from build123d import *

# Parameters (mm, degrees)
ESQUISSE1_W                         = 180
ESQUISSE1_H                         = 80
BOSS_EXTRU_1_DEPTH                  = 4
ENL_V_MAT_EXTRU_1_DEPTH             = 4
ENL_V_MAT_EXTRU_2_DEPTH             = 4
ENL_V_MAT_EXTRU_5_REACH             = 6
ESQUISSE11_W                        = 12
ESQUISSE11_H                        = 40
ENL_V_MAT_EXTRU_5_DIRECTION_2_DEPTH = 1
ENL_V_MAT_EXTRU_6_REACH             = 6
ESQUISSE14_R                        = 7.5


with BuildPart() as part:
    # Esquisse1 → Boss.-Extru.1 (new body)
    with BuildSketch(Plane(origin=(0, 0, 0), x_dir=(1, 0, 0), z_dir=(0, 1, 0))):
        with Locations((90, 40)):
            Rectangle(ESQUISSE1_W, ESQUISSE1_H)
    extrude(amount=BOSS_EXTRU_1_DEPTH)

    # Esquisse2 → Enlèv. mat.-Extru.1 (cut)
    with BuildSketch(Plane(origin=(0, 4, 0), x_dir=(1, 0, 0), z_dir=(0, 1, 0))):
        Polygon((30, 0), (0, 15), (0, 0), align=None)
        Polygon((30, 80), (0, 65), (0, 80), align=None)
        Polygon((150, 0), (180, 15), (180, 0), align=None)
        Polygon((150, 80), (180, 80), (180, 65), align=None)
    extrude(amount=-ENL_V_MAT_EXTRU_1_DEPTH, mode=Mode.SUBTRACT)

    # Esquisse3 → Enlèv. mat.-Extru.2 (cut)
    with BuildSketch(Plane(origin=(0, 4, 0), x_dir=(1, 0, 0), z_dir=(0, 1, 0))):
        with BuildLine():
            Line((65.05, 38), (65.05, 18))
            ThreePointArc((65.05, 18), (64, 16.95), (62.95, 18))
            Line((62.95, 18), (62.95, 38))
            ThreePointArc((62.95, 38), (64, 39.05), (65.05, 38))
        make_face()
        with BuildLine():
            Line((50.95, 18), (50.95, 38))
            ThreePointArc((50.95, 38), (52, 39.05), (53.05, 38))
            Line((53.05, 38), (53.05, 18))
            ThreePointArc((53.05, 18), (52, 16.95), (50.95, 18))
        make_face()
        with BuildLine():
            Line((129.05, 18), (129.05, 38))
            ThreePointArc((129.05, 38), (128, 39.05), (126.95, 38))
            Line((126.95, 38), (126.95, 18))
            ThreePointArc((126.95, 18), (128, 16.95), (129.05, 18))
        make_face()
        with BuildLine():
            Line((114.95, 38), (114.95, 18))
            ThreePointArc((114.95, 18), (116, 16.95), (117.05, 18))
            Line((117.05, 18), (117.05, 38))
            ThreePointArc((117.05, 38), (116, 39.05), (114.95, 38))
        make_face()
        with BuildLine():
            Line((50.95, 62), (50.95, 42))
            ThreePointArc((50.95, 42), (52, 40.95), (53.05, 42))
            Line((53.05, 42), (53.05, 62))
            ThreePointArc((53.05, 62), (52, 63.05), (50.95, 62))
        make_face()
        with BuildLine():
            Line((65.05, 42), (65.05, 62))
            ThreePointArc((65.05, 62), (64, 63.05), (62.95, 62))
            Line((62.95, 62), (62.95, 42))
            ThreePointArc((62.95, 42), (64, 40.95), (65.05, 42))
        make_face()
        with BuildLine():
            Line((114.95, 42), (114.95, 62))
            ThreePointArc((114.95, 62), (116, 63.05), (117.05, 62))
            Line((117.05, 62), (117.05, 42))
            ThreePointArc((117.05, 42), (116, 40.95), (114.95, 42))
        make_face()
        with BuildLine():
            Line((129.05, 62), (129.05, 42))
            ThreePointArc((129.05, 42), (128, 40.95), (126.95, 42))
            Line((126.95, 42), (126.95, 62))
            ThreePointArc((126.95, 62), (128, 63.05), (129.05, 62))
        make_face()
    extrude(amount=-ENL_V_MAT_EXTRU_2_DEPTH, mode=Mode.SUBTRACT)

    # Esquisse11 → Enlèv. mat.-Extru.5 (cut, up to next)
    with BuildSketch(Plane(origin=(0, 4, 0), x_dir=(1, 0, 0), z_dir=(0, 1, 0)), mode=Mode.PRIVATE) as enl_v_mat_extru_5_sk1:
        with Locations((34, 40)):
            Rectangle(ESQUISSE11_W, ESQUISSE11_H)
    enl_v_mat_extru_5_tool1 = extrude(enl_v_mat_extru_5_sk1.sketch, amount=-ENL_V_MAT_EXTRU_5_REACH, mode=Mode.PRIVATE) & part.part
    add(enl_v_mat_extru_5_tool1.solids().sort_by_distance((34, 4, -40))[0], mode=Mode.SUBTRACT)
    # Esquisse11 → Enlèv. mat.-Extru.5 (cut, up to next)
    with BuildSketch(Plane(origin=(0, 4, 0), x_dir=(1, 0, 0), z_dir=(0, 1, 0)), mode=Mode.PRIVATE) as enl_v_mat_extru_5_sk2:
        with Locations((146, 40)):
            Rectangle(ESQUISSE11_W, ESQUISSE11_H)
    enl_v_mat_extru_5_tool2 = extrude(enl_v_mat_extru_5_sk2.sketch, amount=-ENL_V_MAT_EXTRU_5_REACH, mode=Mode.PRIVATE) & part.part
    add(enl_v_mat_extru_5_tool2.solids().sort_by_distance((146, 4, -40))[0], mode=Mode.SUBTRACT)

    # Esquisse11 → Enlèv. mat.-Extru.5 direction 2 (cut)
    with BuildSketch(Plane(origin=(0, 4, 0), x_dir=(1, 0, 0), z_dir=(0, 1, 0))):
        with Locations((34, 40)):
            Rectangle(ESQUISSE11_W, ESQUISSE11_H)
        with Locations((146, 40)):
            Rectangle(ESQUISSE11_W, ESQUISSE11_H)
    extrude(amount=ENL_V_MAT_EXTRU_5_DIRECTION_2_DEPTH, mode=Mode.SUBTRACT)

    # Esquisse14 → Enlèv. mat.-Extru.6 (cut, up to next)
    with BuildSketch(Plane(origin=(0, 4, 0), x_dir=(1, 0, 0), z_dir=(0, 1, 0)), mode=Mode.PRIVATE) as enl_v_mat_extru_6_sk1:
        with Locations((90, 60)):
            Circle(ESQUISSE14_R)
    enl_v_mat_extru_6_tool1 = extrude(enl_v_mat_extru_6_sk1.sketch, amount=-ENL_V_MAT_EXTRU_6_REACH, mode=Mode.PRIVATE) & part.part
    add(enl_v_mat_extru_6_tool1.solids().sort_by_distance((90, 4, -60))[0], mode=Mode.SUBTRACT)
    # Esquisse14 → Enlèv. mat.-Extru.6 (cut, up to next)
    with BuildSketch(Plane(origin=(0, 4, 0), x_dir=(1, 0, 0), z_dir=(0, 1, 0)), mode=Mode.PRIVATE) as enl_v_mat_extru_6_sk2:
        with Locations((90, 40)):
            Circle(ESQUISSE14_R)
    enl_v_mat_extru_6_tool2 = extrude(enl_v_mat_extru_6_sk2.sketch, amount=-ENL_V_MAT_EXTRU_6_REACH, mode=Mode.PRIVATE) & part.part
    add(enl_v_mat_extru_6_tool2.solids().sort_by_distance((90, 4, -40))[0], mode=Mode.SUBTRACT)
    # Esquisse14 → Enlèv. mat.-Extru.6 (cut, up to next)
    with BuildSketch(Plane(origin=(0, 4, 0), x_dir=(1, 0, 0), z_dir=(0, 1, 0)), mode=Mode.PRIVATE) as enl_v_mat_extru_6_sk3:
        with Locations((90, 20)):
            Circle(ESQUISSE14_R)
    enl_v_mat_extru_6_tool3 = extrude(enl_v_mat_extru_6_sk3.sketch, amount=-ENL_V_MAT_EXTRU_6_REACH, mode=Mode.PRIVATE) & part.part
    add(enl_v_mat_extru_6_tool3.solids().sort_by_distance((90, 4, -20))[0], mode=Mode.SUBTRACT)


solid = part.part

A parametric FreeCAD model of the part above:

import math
import FreeCAD as App
import Part
import Sketcher
from FreeCAD import Vector
Q = App.Units.Quantity


def add_polygon(sketch, points):
    """Adds a closed chain of lines whose ends are joined by coincident constraints."""
    first, n = sketch.GeometryCount, len(points)
    for a, b in zip(points, points[1:] + points[:1]):
        sketch.addGeometry(Part.LineSegment(App.Vector(*a, 0), App.Vector(*b, 0)), False)
    for i in range(n):
        sketch.addConstraint(Sketcher.Constraint("Coincident", first + i, 2, first + (i + 1) % n, 1))

doc = App.newDocument("Part")
body = doc.addObject("PartDesign::Body", "Body")

# Sketch on XZ plane
sketch1 = doc.addObject("Sketcher::SketchObject", "Sketch")
body.addObject(sketch1)
sketch1.AttachmentSupport = (doc.XZ_Plane, [""])
sketch1.MapMode = "FlatFace"
add_polygon(sketch1, [(0, -80), (0, 0), (180, 0), (180, -80)])  # lines 0-3
sketch1.addConstraint(Sketcher.Constraint("Vertical", 0))
sketch1.addConstraint(Sketcher.Constraint("Horizontal", 1))
sketch1.addConstraint(Sketcher.Constraint("Vertical", 2))
sketch1.addConstraint(Sketcher.Constraint("Horizontal", 3))
sketch1.addConstraint(Sketcher.Constraint("Coincident", 0, 2, -1, 1))
sketch1.addConstraint(Sketcher.Constraint("DistanceX", 1, 1, 1, 2, Q("180 mm")))
sketch1.addConstraint(Sketcher.Constraint("DistanceY", 0, 1, 0, 2, Q("80 mm")))
pad1 = doc.addObject("PartDesign::Pad", "Pad")
body.addObject(pad1)
pad1.Profile = sketch1
pad1.Length = 4
pad1.Reversed = True

# Sketch on XZ plane
sketch2 = doc.addObject("Sketcher::SketchObject", "Sketch001")
body.addObject(sketch2)
sketch2.AttachmentSupport = (doc.XZ_Plane, [""])
sketch2.MapMode = "FlatFace"
sketch2.AttachmentOffset = App.Placement(Vector(0, 0, -4), App.Rotation())
add_polygon(sketch2, [(30, 0), (0, -15), (0, 0)])  # lines 0-2
add_polygon(sketch2, [(0, -65), (30, -80), (0, -80)])  # lines 3-5
add_polygon(sketch2, [(180, -15), (150, 0), (180, 0)])  # lines 6-8
add_polygon(sketch2, [(180, -80), (150, -80), (180, -65)])  # lines 9-11
sketch2.addConstraint(Sketcher.Constraint("Vertical", 1))
sketch2.addConstraint(Sketcher.Constraint("Horizontal", 2))
sketch2.addConstraint(Sketcher.Constraint("Horizontal", 4))
sketch2.addConstraint(Sketcher.Constraint("Vertical", 5))
sketch2.addConstraint(Sketcher.Constraint("Horizontal", 7))
sketch2.addConstraint(Sketcher.Constraint("Vertical", 8))
sketch2.addConstraint(Sketcher.Constraint("Horizontal", 9))
sketch2.addConstraint(Sketcher.Constraint("Vertical", 11))
sketch2.addConstraint(Sketcher.Constraint("Coincident", 1, 2, -1, 1))
sketch2.addConstraint(Sketcher.Constraint("PointOnObject", 4, 2, -2))
sketch2.addConstraint(Sketcher.Constraint("PointOnObject", 6, 2, -1))
sketch2.addConstraint(Sketcher.Constraint("Parallel", 3, 6))
sketch2.addConstraint(Sketcher.Constraint("Parallel", 0, 10))
sketch2.addConstraint(Sketcher.Constraint("Horizontal", 0, 2, 8, 2))
sketch2.addConstraint(Sketcher.Constraint("Horizontal", 4, 2, 9, 2))
sketch2.addConstraint(Sketcher.Constraint("Horizontal", 5, 2, 10, 2))
sketch2.addConstraint(Sketcher.Constraint("Vertical", 2, 2, 3, 2))
sketch2.addConstraint(Sketcher.Constraint("Vertical", 6, 2, 9, 2))
sketch2.addConstraint(Sketcher.Constraint("Vertical", 8, 2, 10, 2))
sketch2.addConstraint(Sketcher.Constraint("DistanceX", 2, 1, 2, 2, Q("30 mm")))
sketch2.addConstraint(Sketcher.Constraint("DistanceY", 1, 1, 1, 2, Q("15 mm")))
sketch2.addConstraint(Sketcher.Constraint("DistanceY", 3, 2, -1, 1, Q("80 mm")))
sketch2.addConstraint(Sketcher.Constraint("DistanceX", -1, 1, 6, 2, Q("150 mm")))
pocket1 = doc.addObject("PartDesign::Pocket", "Pocket")
body.addObject(pocket1)
pocket1.Profile = sketch2
pocket1.Length = 4
pocket1.Reversed = True

# Sketch on XZ plane
sketch3 = doc.addObject("Sketcher::SketchObject", "Sketch002")
body.addObject(sketch3)
sketch3.AttachmentSupport = (doc.XZ_Plane, [""])
sketch3.MapMode = "FlatFace"
sketch3.AttachmentOffset = App.Placement(Vector(0, 0, -4), App.Rotation())
sketch3.addGeometry(Part.LineSegment(Vector(65, -18, 0), Vector(65, -38, 0)), False)
sketch3.addGeometry(Part.ArcOfCircle(Part.Circle(Vector(64, -38, 0), Vector(0, 0, 1), 1.1), math.radians(180), math.radians(360)), False)
sketch3.addGeometry(Part.LineSegment(Vector(63, -38, 0), Vector(63, -18, 0)), False)
sketch3.addGeometry(Part.ArcOfCircle(Part.Circle(Vector(64, -18, 0), Vector(0, 0, 1), 1.1), math.radians(0), math.radians(180)), False)
sketch3.addGeometry(Part.LineSegment(Vector(51, -38, 0), Vector(51, -18, 0)), False)
sketch3.addGeometry(Part.ArcOfCircle(Part.Circle(Vector(52, -18, 0), Vector(0, 0, 1), 1.1), math.radians(0), math.radians(180)), False)
sketch3.addGeometry(Part.LineSegment(Vector(53, -18, 0), Vector(53, -38, 0)), False)
sketch3.addGeometry(Part.ArcOfCircle(Part.Circle(Vector(52, -38, 0), Vector(0, 0, 1), 1.1), math.radians(180), math.radians(360)), False)
sketch3.addGeometry(Part.LineSegment(Vector(129.1, -18, 0), Vector(129.1, -38, 0)), False)
sketch3.addGeometry(Part.ArcOfCircle(Part.Circle(Vector(128, -38, 0), Vector(0, 0, 1), 1.1), math.radians(180), math.radians(360)), False)
sketch3.addGeometry(Part.LineSegment(Vector(127, -38, 0), Vector(127, -18, 0)), False)
sketch3.addGeometry(Part.ArcOfCircle(Part.Circle(Vector(128, -18, 0), Vector(0, 0, 1), 1.1), math.radians(0), math.radians(180)), False)
sketch3.addGeometry(Part.LineSegment(Vector(115, -38, 0), Vector(115, -18, 0)), False)
sketch3.addGeometry(Part.ArcOfCircle(Part.Circle(Vector(116, -18, 0), Vector(0, 0, 1), 1.1), math.radians(0), math.radians(180)), False)
sketch3.addGeometry(Part.LineSegment(Vector(117, -18, 0), Vector(117, -38, 0)), False)
sketch3.addGeometry(Part.ArcOfCircle(Part.Circle(Vector(116, -38, 0), Vector(0, 0, 1), 1.1), math.radians(180), math.radians(360)), False)
sketch3.addGeometry(Part.LineSegment(Vector(51, -62, 0), Vector(51, -42, 0)), False)
sketch3.addGeometry(Part.ArcOfCircle(Part.Circle(Vector(52, -42, 0), Vector(0, 0, 1), 1.1), math.radians(0), math.radians(180)), False)
sketch3.addGeometry(Part.LineSegment(Vector(53, -42, 0), Vector(53, -62, 0)), False)
sketch3.addGeometry(Part.ArcOfCircle(Part.Circle(Vector(52, -62, 0), Vector(0, 0, 1), 1.1), math.radians(180), math.radians(360)), False)
sketch3.addGeometry(Part.LineSegment(Vector(65, -42, 0), Vector(65, -62, 0)), False)
sketch3.addGeometry(Part.ArcOfCircle(Part.Circle(Vector(64, -62, 0), Vector(0, 0, 1), 1.1), math.radians(180), math.radians(360)), False)
sketch3.addGeometry(Part.LineSegment(Vector(63, -62, 0), Vector(63, -42, 0)), False)
sketch3.addGeometry(Part.ArcOfCircle(Part.Circle(Vector(64, -42, 0), Vector(0, 0, 1), 1.1), math.radians(0), math.radians(180)), False)
sketch3.addGeometry(Part.LineSegment(Vector(115, -62, 0), Vector(115, -42, 0)), False)
sketch3.addGeometry(Part.ArcOfCircle(Part.Circle(Vector(116, -42, 0), Vector(0, 0, 1), 1.1), math.radians(0), math.radians(180)), False)
sketch3.addGeometry(Part.LineSegment(Vector(117, -42, 0), Vector(117, -62, 0)), False)
sketch3.addGeometry(Part.ArcOfCircle(Part.Circle(Vector(116, -62, 0), Vector(0, 0, 1), 1.1), math.radians(180), math.radians(360)), False)
sketch3.addGeometry(Part.LineSegment(Vector(129.1, -42, 0), Vector(129.1, -62, 0)), False)
sketch3.addGeometry(Part.ArcOfCircle(Part.Circle(Vector(128, -62, 0), Vector(0, 0, 1), 1.1), math.radians(180), math.radians(360)), False)
sketch3.addGeometry(Part.LineSegment(Vector(127, -62, 0), Vector(127, -42, 0)), False)
sketch3.addGeometry(Part.ArcOfCircle(Part.Circle(Vector(128, -42, 0), Vector(0, 0, 1), 1.1), math.radians(0), math.radians(180)), False)
sketch3.addConstraint(Sketcher.Constraint("Tangent", 0, 2, 1, 2))
sketch3.addConstraint(Sketcher.Constraint("Tangent", 1, 1, 2, 1))
sketch3.addConstraint(Sketcher.Constraint("Tangent", 2, 2, 3, 2))
sketch3.addConstraint(Sketcher.Constraint("Tangent", 3, 1, 0, 1))
sketch3.addConstraint(Sketcher.Constraint("Tangent", 4, 2, 5, 2))
sketch3.addConstraint(Sketcher.Constraint("Tangent", 5, 1, 6, 1))
sketch3.addConstraint(Sketcher.Constraint("Tangent", 6, 2, 7, 2))
sketch3.addConstraint(Sketcher.Constraint("Tangent", 7, 1, 4, 1))
sketch3.addConstraint(Sketcher.Constraint("Tangent", 8, 2, 9, 2))
sketch3.addConstraint(Sketcher.Constraint("Tangent", 9, 1, 10, 1))
sketch3.addConstraint(Sketcher.Constraint("Tangent", 10, 2, 11, 2))
sketch3.addConstraint(Sketcher.Constraint("Tangent", 11, 1, 8, 1))
sketch3.addConstraint(Sketcher.Constraint("Tangent", 12, 2, 13, 2))
sketch3.addConstraint(Sketcher.Constraint("Tangent", 13, 1, 14, 1))
sketch3.addConstraint(Sketcher.Constraint("Tangent", 14, 2, 15, 2))
sketch3.addConstraint(Sketcher.Constraint("Tangent", 15, 1, 12, 1))
sketch3.addConstraint(Sketcher.Constraint("Tangent", 16, 2, 17, 2))
sketch3.addConstraint(Sketcher.Constraint("Tangent", 17, 1, 18, 1))
sketch3.addConstraint(Sketcher.Constraint("Tangent", 18, 2, 19, 2))
sketch3.addConstraint(Sketcher.Constraint("Tangent", 19, 1, 16, 1))
sketch3.addConstraint(Sketcher.Constraint("Tangent", 20, 2, 21, 2))
sketch3.addConstraint(Sketcher.Constraint("Tangent", 21, 1, 22, 1))
sketch3.addConstraint(Sketcher.Constraint("Tangent", 22, 2, 23, 2))
sketch3.addConstraint(Sketcher.Constraint("Tangent", 23, 1, 20, 1))
sketch3.addConstraint(Sketcher.Constraint("Tangent", 24, 2, 25, 2))
sketch3.addConstraint(Sketcher.Constraint("Tangent", 25, 1, 26, 1))
sketch3.addConstraint(Sketcher.Constraint("Tangent", 26, 2, 27, 2))
sketch3.addConstraint(Sketcher.Constraint("Tangent", 27, 1, 24, 1))
sketch3.addConstraint(Sketcher.Constraint("Tangent", 28, 2, 29, 2))
sketch3.addConstraint(Sketcher.Constraint("Tangent", 29, 1, 30, 1))
sketch3.addConstraint(Sketcher.Constraint("Tangent", 30, 2, 31, 2))
sketch3.addConstraint(Sketcher.Constraint("Tangent", 31, 1, 28, 1))
sketch3.addConstraint(Sketcher.Constraint("Vertical", 0))
sketch3.addConstraint(Sketcher.Constraint("Vertical", 2))
sketch3.addConstraint(Sketcher.Constraint("Vertical", 4))
sketch3.addConstraint(Sketcher.Constraint("Vertical", 6))
sketch3.addConstraint(Sketcher.Constraint("Vertical", 8))
sketch3.addConstraint(Sketcher.Constraint("Vertical", 10))
sketch3.addConstraint(Sketcher.Constraint("Vertical", 12))
sketch3.addConstraint(Sketcher.Constraint("Vertical", 14))
sketch3.addConstraint(Sketcher.Constraint("Vertical", 16))
sketch3.addConstraint(Sketcher.Constraint("Vertical", 18))
sketch3.addConstraint(Sketcher.Constraint("Vertical", 20))
sketch3.addConstraint(Sketcher.Constraint("Vertical", 22))
sketch3.addConstraint(Sketcher.Constraint("Vertical", 24))
sketch3.addConstraint(Sketcher.Constraint("Vertical", 26))
sketch3.addConstraint(Sketcher.Constraint("Vertical", 28))
sketch3.addConstraint(Sketcher.Constraint("Vertical", 30))
sketch3.addConstraint(Sketcher.Constraint("Equal", 3, 5))
sketch3.addConstraint(Sketcher.Constraint("Equal", 7, 9))
sketch3.addConstraint(Sketcher.Constraint("Equal", 11, 13))
sketch3.addConstraint(Sketcher.Constraint("Equal", 15, 17))
sketch3.addConstraint(Sketcher.Constraint("Equal", 19, 21))
sketch3.addConstraint(Sketcher.Constraint("Equal", 23, 25))
sketch3.addConstraint(Sketcher.Constraint("Equal", 27, 29))
sketch3.addConstraint(Sketcher.Constraint("Horizontal", 3, 3, 5, 3))
sketch3.addConstraint(Sketcher.Constraint("Horizontal", 1, 3, 7, 3))
sketch3.addConstraint(Sketcher.Constraint("Horizontal", 7, 3, 9, 3))
sketch3.addConstraint(Sketcher.Constraint("Horizontal", 5, 3, 11, 3))
sketch3.addConstraint(Sketcher.Constraint("Horizontal", 11, 3, 13, 3))
sketch3.addConstraint(Sketcher.Constraint("Horizontal", 9, 3, 15, 3))
sketch3.addConstraint(Sketcher.Constraint("Horizontal", 19, 3, 21, 3))
sketch3.addConstraint(Sketcher.Constraint("Horizontal", 17, 3, 23, 3))
sketch3.addConstraint(Sketcher.Constraint("Horizontal", 23, 3, 25, 3))
sketch3.addConstraint(Sketcher.Constraint("Horizontal", 21, 3, 27, 3))
sketch3.addConstraint(Sketcher.Constraint("Horizontal", 27, 3, 29, 3))
sketch3.addConstraint(Sketcher.Constraint("Horizontal", 25, 3, 31, 3))
sketch3.addConstraint(Sketcher.Constraint("Vertical", 7, 3, 17, 3))
sketch3.addConstraint(Sketcher.Constraint("Vertical", 3, 3, 21, 3))
sketch3.addConstraint(Sketcher.Constraint("Vertical", 15, 3, 25, 3))
sketch3.addConstraint(Sketcher.Constraint("Vertical", 11, 3, 29, 3))
sketch3.addConstraint(Sketcher.Constraint("Equal", 14, 16))
sketch3.addConstraint(Sketcher.Constraint("DistanceY", 0, 2, 0, 1, Q("20 mm")))
sketch3.addConstraint(Sketcher.Constraint("Radius", 1, Q("1.05 mm")))
sketch3.addConstraint(Sketcher.Constraint("DistanceX", -1, 1, 1, 3, Q("64 mm")))
sketch3.addConstraint(Sketcher.Constraint("DistanceY", 1, 3, -1, 1, Q("38 mm")))
sketch3.addConstraint(Sketcher.Constraint("DistanceX", -1, 1, 5, 3, Q("52 mm")))
sketch3.addConstraint(Sketcher.Constraint("DistanceX", -1, 1, 9, 3, Q("128 mm")))
sketch3.addConstraint(Sketcher.Constraint("DistanceX", -1, 1, 13, 3, Q("116 mm")))
sketch3.addConstraint(Sketcher.Constraint("DistanceY", 17, 3, -1, 1, Q("42 mm")))
pocket2 = doc.addObject("PartDesign::Pocket", "Pocket001")
body.addObject(pocket2)
pocket2.Profile = sketch3
pocket2.Length = 4
pocket2.Reversed = True

# Sketch on XZ plane
sketch4 = doc.addObject("Sketcher::SketchObject", "Sketch003")
body.addObject(sketch4)
sketch4.AttachmentSupport = (doc.XZ_Plane, [""])
sketch4.MapMode = "FlatFace"
sketch4.AttachmentOffset = App.Placement(Vector(0, 0, -4), App.Rotation())
add_polygon(sketch4, [(28, -60), (28, -20), (40, -20), (40, -60)])  # lines 0-3
sketch4.addConstraint(Sketcher.Constraint("Vertical", 0))
sketch4.addConstraint(Sketcher.Constraint("Horizontal", 1))
sketch4.addConstraint(Sketcher.Constraint("Vertical", 2))
sketch4.addConstraint(Sketcher.Constraint("Horizontal", 3))
sketch4.addConstraint(Sketcher.Constraint("DistanceX", 1, 1, 1, 2, Q("12 mm")))
sketch4.addConstraint(Sketcher.Constraint("DistanceY", 0, 1, 0, 2, Q("40 mm")))
sketch4.addConstraint(Sketcher.Constraint("DistanceX", -1, 1, 0, 2, Q("28 mm")))
sketch4.addConstraint(Sketcher.Constraint("DistanceY", 0, 2, -1, 1, Q("20 mm")))
pocket3 = doc.addObject("PartDesign::Pocket", "Pocket002")
body.addObject(pocket3)
pocket3.Profile = sketch4
pocket3.Type = "UpToFirst"
pocket3.Reversed = True

# Sketch on XZ plane
sketch5 = doc.addObject("Sketcher::SketchObject", "Sketch004")
body.addObject(sketch5)
sketch5.AttachmentSupport = (doc.XZ_Plane, [""])
sketch5.MapMode = "FlatFace"
sketch5.AttachmentOffset = App.Placement(Vector(0, 0, -4), App.Rotation())
add_polygon(sketch5, [(140, -60), (140, -20), (152, -20), (152, -60)])  # lines 0-3
sketch5.addConstraint(Sketcher.Constraint("Vertical", 0))
sketch5.addConstraint(Sketcher.Constraint("Horizontal", 1))
sketch5.addConstraint(Sketcher.Constraint("Vertical", 2))
sketch5.addConstraint(Sketcher.Constraint("Horizontal", 3))
sketch5.addConstraint(Sketcher.Constraint("DistanceX", 1, 1, 1, 2, Q("12 mm")))
sketch5.addConstraint(Sketcher.Constraint("DistanceY", 0, 1, 0, 2, Q("40 mm")))
sketch5.addConstraint(Sketcher.Constraint("DistanceX", -1, 1, 0, 2, Q("140 mm")))
sketch5.addConstraint(Sketcher.Constraint("DistanceY", 0, 2, -1, 1, Q("20 mm")))
pocket4 = doc.addObject("PartDesign::Pocket", "Pocket003")
body.addObject(pocket4)
pocket4.Profile = sketch5
pocket4.Type = "UpToFirst"
pocket4.Reversed = True

# Sketch on XZ plane
sketch6 = doc.addObject("Sketcher::SketchObject", "Sketch005")
body.addObject(sketch6)
sketch6.AttachmentSupport = (doc.XZ_Plane, [""])
sketch6.MapMode = "FlatFace"
sketch6.AttachmentOffset = App.Placement(Vector(0, 0, -4), App.Rotation())
add_polygon(sketch6, [(28, -60), (28, -20), (40, -20), (40, -60)])  # lines 0-3
add_polygon(sketch6, [(140, -60), (140, -20), (152, -20), (152, -60)])  # lines 4-7
sketch6.addConstraint(Sketcher.Constraint("Vertical", 0))
sketch6.addConstraint(Sketcher.Constraint("Horizontal", 1))
sketch6.addConstraint(Sketcher.Constraint("Vertical", 2))
sketch6.addConstraint(Sketcher.Constraint("Horizontal", 3))
sketch6.addConstraint(Sketcher.Constraint("Vertical", 4))
sketch6.addConstraint(Sketcher.Constraint("Horizontal", 5))
sketch6.addConstraint(Sketcher.Constraint("Vertical", 6))
sketch6.addConstraint(Sketcher.Constraint("Horizontal", 7))
sketch6.addConstraint(Sketcher.Constraint("Horizontal", 1, 2, 4, 2))
sketch6.addConstraint(Sketcher.Constraint("Horizontal", 3, 2, 6, 2))
sketch6.addConstraint(Sketcher.Constraint("Equal", 3, 5))
sketch6.addConstraint(Sketcher.Constraint("DistanceX", 1, 1, 1, 2, Q("12 mm")))
sketch6.addConstraint(Sketcher.Constraint("DistanceY", 0, 1, 0, 2, Q("40 mm")))
sketch6.addConstraint(Sketcher.Constraint("DistanceX", -1, 1, 0, 2, Q("28 mm")))
sketch6.addConstraint(Sketcher.Constraint("DistanceY", 0, 2, -1, 1, Q("20 mm")))
sketch6.addConstraint(Sketcher.Constraint("DistanceX", -1, 1, 4, 2, Q("140 mm")))
pocket5 = doc.addObject("PartDesign::Pocket", "Pocket004")
body.addObject(pocket5)
pocket5.Profile = sketch6
pocket5.Length = 1

# Sketch on XZ plane
sketch7 = doc.addObject("Sketcher::SketchObject", "Sketch006")
body.addObject(sketch7)
sketch7.AttachmentSupport = (doc.XZ_Plane, [""])
sketch7.MapMode = "FlatFace"
sketch7.AttachmentOffset = App.Placement(Vector(0, 0, -4), App.Rotation())
sketch7.addGeometry(Part.Circle(Vector(90, -60, 0), Vector(0, 0, 1), 8), False)
sketch7.addConstraint(Sketcher.Constraint("Diameter", 0, Q("15 mm")))
sketch7.addConstraint(Sketcher.Constraint("DistanceX", -1, 1, 0, 3, Q("90 mm")))
sketch7.addConstraint(Sketcher.Constraint("DistanceY", 0, 3, -1, 1, Q("60 mm")))
pocket6 = doc.addObject("PartDesign::Pocket", "Pocket005")
body.addObject(pocket6)
pocket6.Profile = sketch7
pocket6.Type = "UpToFirst"
pocket6.Reversed = True

# Sketch on XZ plane
sketch8 = doc.addObject("Sketcher::SketchObject", "Sketch007")
body.addObject(sketch8)
sketch8.AttachmentSupport = (doc.XZ_Plane, [""])
sketch8.MapMode = "FlatFace"
sketch8.AttachmentOffset = App.Placement(Vector(0, 0, -4), App.Rotation())
sketch8.addGeometry(Part.Circle(Vector(90, -40, 0), Vector(0, 0, 1), 8), False)
sketch8.addConstraint(Sketcher.Constraint("Diameter", 0, Q("15 mm")))
sketch8.addConstraint(Sketcher.Constraint("DistanceX", -1, 1, 0, 3, Q("90 mm")))
sketch8.addConstraint(Sketcher.Constraint("DistanceY", 0, 3, -1, 1, Q("40 mm")))
pocket7 = doc.addObject("PartDesign::Pocket", "Pocket006")
body.addObject(pocket7)
pocket7.Profile = sketch8
pocket7.Type = "UpToFirst"
pocket7.Reversed = True

# Sketch on XZ plane
sketch9 = doc.addObject("Sketcher::SketchObject", "Sketch008")
body.addObject(sketch9)
sketch9.AttachmentSupport = (doc.XZ_Plane, [""])
sketch9.MapMode = "FlatFace"
sketch9.AttachmentOffset = App.Placement(Vector(0, 0, -4), App.Rotation())
sketch9.addGeometry(Part.Circle(Vector(90, -20, 0), Vector(0, 0, 1), 8), False)
sketch9.addConstraint(Sketcher.Constraint("Diameter", 0, Q("15 mm")))
sketch9.addConstraint(Sketcher.Constraint("DistanceX", -1, 1, 0, 3, Q("90 mm")))
sketch9.addConstraint(Sketcher.Constraint("DistanceY", 0, 3, -1, 1, Q("20 mm")))
pocket8 = doc.addObject("PartDesign::Pocket", "Pocket007")
body.addObject(pocket8)
pocket8.Profile = sketch9
pocket8.Type = "UpToFirst"
pocket8.Reversed = True

doc.recompute()
